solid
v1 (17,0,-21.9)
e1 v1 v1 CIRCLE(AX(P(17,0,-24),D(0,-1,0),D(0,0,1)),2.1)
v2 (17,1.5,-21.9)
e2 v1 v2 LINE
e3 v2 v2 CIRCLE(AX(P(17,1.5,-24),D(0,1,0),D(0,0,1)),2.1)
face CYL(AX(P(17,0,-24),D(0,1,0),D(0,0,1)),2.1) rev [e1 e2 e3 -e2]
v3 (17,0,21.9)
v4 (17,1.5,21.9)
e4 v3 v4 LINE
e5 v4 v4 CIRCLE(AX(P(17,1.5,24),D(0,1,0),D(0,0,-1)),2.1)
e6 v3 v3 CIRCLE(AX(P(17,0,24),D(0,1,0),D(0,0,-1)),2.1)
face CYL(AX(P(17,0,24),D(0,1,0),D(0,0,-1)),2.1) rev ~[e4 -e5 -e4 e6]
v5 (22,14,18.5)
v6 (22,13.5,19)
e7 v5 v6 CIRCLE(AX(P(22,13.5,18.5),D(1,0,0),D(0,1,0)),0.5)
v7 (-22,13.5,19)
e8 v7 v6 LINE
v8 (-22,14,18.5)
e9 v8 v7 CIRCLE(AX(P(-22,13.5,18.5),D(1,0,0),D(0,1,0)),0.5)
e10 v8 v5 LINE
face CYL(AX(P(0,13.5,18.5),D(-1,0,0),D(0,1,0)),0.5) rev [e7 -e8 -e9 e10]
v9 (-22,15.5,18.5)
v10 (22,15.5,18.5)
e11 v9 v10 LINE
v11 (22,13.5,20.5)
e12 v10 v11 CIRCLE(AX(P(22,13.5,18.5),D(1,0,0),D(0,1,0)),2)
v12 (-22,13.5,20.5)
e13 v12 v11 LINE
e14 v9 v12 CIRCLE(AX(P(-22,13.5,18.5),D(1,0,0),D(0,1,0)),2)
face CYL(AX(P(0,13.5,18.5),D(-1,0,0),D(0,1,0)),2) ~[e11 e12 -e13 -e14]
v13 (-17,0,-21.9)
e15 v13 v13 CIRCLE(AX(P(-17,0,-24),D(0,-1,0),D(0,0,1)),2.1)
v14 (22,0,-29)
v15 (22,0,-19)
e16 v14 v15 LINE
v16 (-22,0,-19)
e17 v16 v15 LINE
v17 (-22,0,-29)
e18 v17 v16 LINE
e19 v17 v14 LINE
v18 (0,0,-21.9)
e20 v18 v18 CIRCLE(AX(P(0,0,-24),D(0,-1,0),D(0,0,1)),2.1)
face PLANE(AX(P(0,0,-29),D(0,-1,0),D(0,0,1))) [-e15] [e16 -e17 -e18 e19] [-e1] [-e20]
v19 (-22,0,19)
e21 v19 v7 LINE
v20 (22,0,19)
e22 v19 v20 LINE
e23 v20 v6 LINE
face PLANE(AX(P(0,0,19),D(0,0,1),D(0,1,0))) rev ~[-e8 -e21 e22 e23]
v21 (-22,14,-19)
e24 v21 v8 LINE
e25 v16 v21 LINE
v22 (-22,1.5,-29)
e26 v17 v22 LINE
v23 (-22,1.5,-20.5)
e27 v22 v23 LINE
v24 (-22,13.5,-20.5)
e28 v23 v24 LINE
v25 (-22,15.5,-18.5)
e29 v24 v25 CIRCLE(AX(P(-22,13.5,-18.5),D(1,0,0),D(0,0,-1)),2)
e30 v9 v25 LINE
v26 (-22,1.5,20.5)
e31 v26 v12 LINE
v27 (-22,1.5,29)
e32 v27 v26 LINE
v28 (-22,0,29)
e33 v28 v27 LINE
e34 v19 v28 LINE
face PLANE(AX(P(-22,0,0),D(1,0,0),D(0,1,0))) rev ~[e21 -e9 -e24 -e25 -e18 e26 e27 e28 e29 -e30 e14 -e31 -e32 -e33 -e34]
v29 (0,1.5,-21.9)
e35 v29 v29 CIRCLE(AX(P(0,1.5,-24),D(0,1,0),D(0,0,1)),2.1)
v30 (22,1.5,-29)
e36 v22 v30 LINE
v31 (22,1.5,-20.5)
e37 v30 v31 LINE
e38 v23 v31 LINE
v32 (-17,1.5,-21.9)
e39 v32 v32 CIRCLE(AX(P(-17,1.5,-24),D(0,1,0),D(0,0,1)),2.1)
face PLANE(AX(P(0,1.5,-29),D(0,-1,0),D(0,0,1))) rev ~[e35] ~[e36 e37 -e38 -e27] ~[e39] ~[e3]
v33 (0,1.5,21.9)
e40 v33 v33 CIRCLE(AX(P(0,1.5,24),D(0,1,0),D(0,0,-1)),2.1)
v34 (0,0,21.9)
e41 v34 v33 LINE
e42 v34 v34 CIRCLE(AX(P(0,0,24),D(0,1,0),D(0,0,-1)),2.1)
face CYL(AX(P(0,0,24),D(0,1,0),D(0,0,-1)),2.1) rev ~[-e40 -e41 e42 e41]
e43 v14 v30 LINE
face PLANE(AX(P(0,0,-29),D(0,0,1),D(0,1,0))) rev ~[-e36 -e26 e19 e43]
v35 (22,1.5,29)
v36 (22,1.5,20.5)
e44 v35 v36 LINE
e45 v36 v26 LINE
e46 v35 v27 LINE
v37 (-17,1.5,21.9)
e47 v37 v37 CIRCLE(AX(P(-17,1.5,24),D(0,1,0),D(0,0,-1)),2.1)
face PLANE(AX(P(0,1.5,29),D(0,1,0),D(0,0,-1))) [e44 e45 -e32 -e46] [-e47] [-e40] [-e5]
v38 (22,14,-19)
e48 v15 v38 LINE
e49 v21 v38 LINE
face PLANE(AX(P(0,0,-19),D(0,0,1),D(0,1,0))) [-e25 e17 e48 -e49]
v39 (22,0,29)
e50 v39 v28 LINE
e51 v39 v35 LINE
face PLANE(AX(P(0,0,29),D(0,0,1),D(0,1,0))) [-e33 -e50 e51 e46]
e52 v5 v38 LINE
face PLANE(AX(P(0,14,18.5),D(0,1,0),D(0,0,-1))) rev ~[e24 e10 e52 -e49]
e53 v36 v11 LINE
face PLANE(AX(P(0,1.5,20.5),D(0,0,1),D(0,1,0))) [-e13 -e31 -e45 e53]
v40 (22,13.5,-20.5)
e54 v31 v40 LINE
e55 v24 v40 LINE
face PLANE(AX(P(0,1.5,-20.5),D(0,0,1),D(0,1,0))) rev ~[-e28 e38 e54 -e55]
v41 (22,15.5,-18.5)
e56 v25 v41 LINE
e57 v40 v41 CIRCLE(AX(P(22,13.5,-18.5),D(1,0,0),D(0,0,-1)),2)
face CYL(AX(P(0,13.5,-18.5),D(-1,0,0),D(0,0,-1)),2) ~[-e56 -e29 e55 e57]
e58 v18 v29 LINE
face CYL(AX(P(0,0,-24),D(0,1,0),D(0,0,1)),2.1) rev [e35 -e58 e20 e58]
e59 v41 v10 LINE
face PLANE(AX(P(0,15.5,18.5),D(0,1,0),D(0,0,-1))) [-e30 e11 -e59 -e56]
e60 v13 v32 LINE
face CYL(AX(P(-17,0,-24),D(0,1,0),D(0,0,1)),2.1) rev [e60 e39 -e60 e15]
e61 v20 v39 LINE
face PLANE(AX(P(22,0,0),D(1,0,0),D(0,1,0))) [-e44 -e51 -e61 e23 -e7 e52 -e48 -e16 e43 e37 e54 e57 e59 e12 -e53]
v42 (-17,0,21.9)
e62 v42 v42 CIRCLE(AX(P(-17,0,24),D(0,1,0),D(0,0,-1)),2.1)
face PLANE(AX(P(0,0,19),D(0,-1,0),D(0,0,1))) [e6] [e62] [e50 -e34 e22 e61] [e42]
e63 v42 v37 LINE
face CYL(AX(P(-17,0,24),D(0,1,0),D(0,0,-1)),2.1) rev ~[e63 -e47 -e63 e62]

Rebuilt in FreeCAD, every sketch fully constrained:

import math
import FreeCAD as App
import Part
import Sketcher
from FreeCAD import Vector
Q = App.Units.Quantity

doc = App.newDocument("Part")
params = doc.addObject("Spreadsheet::Sheet", "Params")
for row, (alias, value) in enumerate([
    ("sketch1_radius", "2 mm"),
    ("sketch1_radius2", "0.5 mm"),
    ("sketch1_width", "14 mm"),
    ("sketch1_height", "10 mm"),
    ("sketch1_width2", "1.5 mm"),
    ("pad1_length", "44 mm"),
    ("sketch2_diameter", "4.2 mm"),
    ("hole_diameter", "4.2 mm"),
], start=1):
    params.set(f"A{row}", alias)
    params.set(f"B{row}", "=" + value)
    params.setAlias(f"B{row}", alias)

body = doc.addObject("PartDesign::Body", "Body")

# Sketch on YZ plane
sketch1 = body.newObject("Sketcher::SketchObject", "Sketch")
sketch1.AttachmentSupport = (doc.getObject("YZ_Plane"), [""])
sketch1.MapMode = "FlatFace"
sketch1.addGeometry([
    Part.LineSegment(Vector(0, 29, 0), Vector(0, 19, 0)),  # 0
    Part.LineSegment(Vector(0, 19, 0), Vector(13.5, 19, 0)),  # 1
    Part.ArcOfCircle(Part.Circle(Vector(13.5, 18.5, 0), Vector(0, 0, 1), 0.5), math.radians(0), math.radians(90)),  # 2
    Part.LineSegment(Vector(14, 18.5, 0), Vector(14, -19, 0)),  # 3
    Part.LineSegment(Vector(14, -19, 0), Vector(0, -19, 0)),  # 4
    Part.LineSegment(Vector(0, -19, 0), Vector(0, -29, 0)),  # 5
    Part.LineSegment(Vector(0, -29, 0), Vector(1.5, -29, 0)),  # 6
    Part.LineSegment(Vector(1.5, -29, 0), Vector(1.5, -20.5, 0)),  # 7
    Part.LineSegment(Vector(1.5, -20.5, 0), Vector(13.5, -20.5, 0)),  # 8
    Part.ArcOfCircle(Part.Circle(Vector(13.5, -18.5, 0), Vector(0, 0, 1), 2), math.radians(-90), math.radians(0)),  # 9
    Part.LineSegment(Vector(15.5, -18.5, 0), Vector(15.5, 18.5, 0)),  # 10
    Part.ArcOfCircle(Part.Circle(Vector(13.5, 18.5, 0), Vector(0, 0, 1), 2), math.radians(0), math.radians(90)),  # 11
    Part.LineSegment(Vector(13.5, 20.5, 0), Vector(1.5, 20.5, 0)),  # 12
    Part.LineSegment(Vector(1.5, 20.5, 0), Vector(1.5, 29, 0)),  # 13
    Part.LineSegment(Vector(1.5, 29, 0), Vector(0, 29, 0)),  # 14
], False)
sketch1.addConstraint([
    Sketcher.Constraint("Coincident", 0, 2, 1, 1),
    Sketcher.Constraint("Tangent", 1, 2, 2, 2),
    Sketcher.Constraint("Tangent", 2, 1, 3, 1),
    Sketcher.Constraint("Coincident", 3, 2, 4, 1),
    Sketcher.Constraint("Coincident", 4, 2, 5, 1),
    Sketcher.Constraint("Coincident", 5, 2, 6, 1),
    Sketcher.Constraint("Coincident", 6, 2, 7, 1),
    Sketcher.Constraint("Coincident", 7, 2, 8, 1),
    Sketcher.Constraint("Tangent", 8, 2, 9, 1),
    Sketcher.Constraint("Tangent", 9, 2, 10, 1),
    Sketcher.Constraint("Tangent", 10, 2, 11, 1),
    Sketcher.Constraint("Tangent", 11, 2, 12, 1),
    Sketcher.Constraint("Coincident", 12, 2, 13, 1),
    Sketcher.Constraint("Coincident", 13, 2, 14, 1),
    Sketcher.Constraint("Coincident", 14, 2, 0, 1),
    Sketcher.Constraint("Vertical", 0),
    Sketcher.Constraint("Horizontal", 1),
    Sketcher.Constraint("Vertical", 3),
    Sketcher.Constraint("Horizontal", 4),
    Sketcher.Constraint("Vertical", 5),
    Sketcher.Constraint("Horizontal", 6),
    Sketcher.Constraint("Vertical", 7),
    Sketcher.Constraint("Horizontal", 8),
    Sketcher.Constraint("Vertical", 10),
    Sketcher.Constraint("Horizontal", 12),
    Sketcher.Constraint("Vertical", 13),
    Sketcher.Constraint("Horizontal", 14),
    Sketcher.Constraint("Coincident", 11, 3, 2, 3),
    Sketcher.Constraint("Equal", 9, 11),
    Sketcher.Constraint("Symmetric", 0, 2, 4, 2, -1, 1),
    Sketcher.Constraint("Symmetric", 7, 2, 12, 2, -1),
    Sketcher.Constraint("Symmetric", 5, 2, 14, 2, -1),
    Sketcher.Constraint("Radius", 9, Q("2 mm")),
    Sketcher.Constraint("Radius", 2, Q("0.5 mm")),
    Sketcher.Constraint("DistanceX", 4, 2, 4, 1, Q("14 mm")),
    Sketcher.Constraint("DistanceY", 0, 2, 0, 1, Q("10 mm")),
    Sketcher.Constraint("DistanceX", 6, 1, 6, 2, Q("1.5 mm")),
    Sketcher.Constraint("DistanceY", -1, 1, 0, 2, Q("19 mm")),
])
sketch1.setExpression("Constraints[32]", "Params.sketch1_radius")
sketch1.setExpression("Constraints[33]", "Params.sketch1_radius2")
sketch1.setExpression("Constraints[34]", "Params.sketch1_width")
sketch1.setExpression("Constraints[35]", "Params.sketch1_height")
sketch1.setExpression("Constraints[36]", "Params.sketch1_width2")
pad1 = body.newObject("PartDesign::Pad", "Pad")
pad1.Profile = sketch1
pad1.setExpression("Length", "Params.pad1_length")
pad1.Midplane = True

# Sketch on XZ plane
sketch2 = body.newObject("Sketcher::SketchObject", "Sketch001")
sketch2.AttachmentSupport = (doc.getObject("XZ_Plane"), [""])
sketch2.MapMode = "FlatFace"
sketch2.addGeometry([
    Part.Circle(Vector(0, 24, 0), Vector(0, 0, 1), 2.1),
    Part.Circle(Vector(17, 24, 0), Vector(0, 0, 1), 2.1),
    Part.Circle(Vector(-17, 24, 0), Vector(0, 0, 1), 2.1),
], False)
sketch2.addConstraint([
    Sketcher.Constraint("Equal", 0, 1),
    Sketcher.Constraint("Equal", 1, 2),
    Sketcher.Constraint("Symmetric", 1, 3, 2, 3, -2),
    Sketcher.Constraint("PointOnObject", 0, 3, -2),
    Sketcher.Constraint("Horizontal", 0, 3, 1, 3),
    Sketcher.Constraint("Diameter", 0, Q("4.2 mm")),
    Sketcher.Constraint("DistanceY", -1, 1, 0, 3, Q("24 mm")),
    Sketcher.Constraint("DistanceX", -1, 1, 1, 3, Q("17 mm")),
])
sketch2.setExpression("Constraints[5]", "Params.sketch2_diameter")
doc.recompute()
hole = body.newObject("PartDesign::Hole", "Hole")
hole.Profile = sketch2
hole.ThreadType = "None"
hole.setExpression("Diameter", "Params.hole_diameter")
hole.DepthType = "ThroughAll"
doc.recompute()

mirrored = body.newObject("PartDesign::Mirrored", "Mirrored")
mirrored.Originals = [hole]
mirrored.MirrorPlane = (doc.getObject("XY_Plane"), [""])
body.Tip = mirrored

doc.recompute()
